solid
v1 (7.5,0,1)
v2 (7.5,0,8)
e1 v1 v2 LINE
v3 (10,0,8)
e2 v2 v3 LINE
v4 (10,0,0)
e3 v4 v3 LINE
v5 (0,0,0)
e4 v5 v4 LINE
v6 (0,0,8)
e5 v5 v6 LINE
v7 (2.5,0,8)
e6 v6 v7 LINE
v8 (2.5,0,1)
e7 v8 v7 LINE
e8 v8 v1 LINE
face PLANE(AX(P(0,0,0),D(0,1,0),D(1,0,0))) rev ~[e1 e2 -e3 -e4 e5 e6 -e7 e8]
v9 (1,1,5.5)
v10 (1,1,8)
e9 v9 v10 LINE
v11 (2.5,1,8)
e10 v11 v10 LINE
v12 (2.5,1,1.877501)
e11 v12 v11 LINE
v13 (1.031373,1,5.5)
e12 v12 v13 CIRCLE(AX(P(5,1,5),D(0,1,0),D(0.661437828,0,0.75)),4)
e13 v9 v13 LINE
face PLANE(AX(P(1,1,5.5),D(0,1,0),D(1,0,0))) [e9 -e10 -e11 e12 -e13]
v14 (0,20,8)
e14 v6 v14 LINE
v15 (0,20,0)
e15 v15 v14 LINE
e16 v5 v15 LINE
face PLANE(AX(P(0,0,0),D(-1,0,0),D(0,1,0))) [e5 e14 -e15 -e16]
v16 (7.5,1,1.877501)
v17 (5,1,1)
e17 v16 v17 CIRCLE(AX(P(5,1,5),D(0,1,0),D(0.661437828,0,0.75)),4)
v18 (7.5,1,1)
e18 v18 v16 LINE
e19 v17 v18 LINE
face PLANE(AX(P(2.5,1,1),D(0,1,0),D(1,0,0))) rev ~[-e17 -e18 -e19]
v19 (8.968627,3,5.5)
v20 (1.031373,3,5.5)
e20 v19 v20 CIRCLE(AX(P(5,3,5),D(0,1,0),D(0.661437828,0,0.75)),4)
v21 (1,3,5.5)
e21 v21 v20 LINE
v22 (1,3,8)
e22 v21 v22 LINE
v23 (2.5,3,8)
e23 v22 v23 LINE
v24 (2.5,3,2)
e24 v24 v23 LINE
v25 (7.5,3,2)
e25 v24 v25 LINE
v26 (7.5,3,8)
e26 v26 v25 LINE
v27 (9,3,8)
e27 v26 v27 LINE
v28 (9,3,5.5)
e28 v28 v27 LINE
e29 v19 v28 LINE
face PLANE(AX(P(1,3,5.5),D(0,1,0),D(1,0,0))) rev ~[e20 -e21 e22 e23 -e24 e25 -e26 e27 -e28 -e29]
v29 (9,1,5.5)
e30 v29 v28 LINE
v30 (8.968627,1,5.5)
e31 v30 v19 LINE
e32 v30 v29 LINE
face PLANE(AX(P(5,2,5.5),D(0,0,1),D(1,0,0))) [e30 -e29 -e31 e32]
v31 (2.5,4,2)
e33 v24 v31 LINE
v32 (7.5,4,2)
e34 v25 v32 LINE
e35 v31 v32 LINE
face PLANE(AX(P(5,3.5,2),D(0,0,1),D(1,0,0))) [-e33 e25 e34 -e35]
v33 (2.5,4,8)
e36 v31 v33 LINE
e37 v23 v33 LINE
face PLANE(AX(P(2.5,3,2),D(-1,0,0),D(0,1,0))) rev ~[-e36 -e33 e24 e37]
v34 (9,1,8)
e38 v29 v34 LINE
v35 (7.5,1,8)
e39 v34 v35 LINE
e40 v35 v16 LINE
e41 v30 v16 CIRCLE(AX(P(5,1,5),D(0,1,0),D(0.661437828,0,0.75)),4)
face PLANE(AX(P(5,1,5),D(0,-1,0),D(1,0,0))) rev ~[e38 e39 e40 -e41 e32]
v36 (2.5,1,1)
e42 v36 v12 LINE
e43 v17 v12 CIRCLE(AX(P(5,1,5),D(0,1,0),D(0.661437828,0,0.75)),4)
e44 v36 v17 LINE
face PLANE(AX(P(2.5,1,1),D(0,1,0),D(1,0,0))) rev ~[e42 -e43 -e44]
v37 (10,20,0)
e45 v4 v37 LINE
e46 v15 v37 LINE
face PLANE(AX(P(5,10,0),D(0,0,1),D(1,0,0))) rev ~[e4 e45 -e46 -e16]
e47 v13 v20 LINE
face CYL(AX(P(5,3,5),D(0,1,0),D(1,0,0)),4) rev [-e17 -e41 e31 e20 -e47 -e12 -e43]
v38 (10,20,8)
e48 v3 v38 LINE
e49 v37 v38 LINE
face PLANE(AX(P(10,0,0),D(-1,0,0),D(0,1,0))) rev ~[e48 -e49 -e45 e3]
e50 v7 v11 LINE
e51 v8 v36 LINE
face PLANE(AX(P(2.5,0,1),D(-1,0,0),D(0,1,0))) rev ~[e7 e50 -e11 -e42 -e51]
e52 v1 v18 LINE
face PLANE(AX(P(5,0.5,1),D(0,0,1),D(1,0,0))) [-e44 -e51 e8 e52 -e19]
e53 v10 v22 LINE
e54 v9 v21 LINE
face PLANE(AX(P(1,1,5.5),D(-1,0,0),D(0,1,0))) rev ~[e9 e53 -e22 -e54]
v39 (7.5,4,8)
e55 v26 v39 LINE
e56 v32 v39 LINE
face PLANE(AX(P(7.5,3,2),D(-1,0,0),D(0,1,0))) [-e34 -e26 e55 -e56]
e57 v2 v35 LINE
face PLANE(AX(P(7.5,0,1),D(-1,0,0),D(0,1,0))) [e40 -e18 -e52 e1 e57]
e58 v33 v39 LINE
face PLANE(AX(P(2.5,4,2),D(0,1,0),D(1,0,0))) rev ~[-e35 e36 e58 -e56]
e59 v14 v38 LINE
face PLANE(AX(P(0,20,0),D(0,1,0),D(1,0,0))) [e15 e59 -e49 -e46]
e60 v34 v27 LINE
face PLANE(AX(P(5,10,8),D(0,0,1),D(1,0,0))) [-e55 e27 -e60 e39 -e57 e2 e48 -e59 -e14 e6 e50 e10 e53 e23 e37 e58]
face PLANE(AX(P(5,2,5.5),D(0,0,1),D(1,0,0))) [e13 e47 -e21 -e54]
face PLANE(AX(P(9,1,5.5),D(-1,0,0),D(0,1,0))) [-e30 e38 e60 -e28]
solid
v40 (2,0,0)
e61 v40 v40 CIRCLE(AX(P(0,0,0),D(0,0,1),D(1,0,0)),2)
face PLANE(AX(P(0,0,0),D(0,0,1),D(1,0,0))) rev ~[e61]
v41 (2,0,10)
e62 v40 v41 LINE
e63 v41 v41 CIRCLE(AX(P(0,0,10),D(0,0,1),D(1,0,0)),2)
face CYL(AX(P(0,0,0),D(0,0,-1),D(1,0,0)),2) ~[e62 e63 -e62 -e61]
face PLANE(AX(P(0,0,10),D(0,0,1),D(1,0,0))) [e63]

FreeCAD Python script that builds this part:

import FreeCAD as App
import Part
import Sketcher

doc = App.newDocument("Part")
body = doc.addObject("PartDesign::Body", "Body")

# Sketch on XY plane
sketch1 = body.newObject("Sketcher::SketchObject", "Sketch")
sketch1.AttachmentSupport = (doc.getObject("XY_Plane"), [""])
sketch1.MapMode = "FlatFace"
sketch1.AttachmentOffset = App.Placement(App.Vector(0, 0, 5.5), App.Rotation())
sketch1.addGeometry([
    Part.LineSegment(App.Vector(1, 3, 0), App.Vector(1, 1, 0)),
    Part.LineSegment(App.Vector(1, 1, 0), App.Vector(9, 1, 0)),
    Part.LineSegment(App.Vector(9, 1, 0), App.Vector(9, 3, 0)),
    Part.LineSegment(App.Vector(9, 3, 0), App.Vector(1, 3, 0)),
], False)
sketch1.addConstraint([
    Sketcher.Constraint("Coincident", 0, 2, 1, 1),
    Sketcher.Constraint("Coincident", 1, 2, 2, 1),
    Sketcher.Constraint("Coincident", 2, 2, 3, 1),
    Sketcher.Constraint("Coincident", 3, 2, 0, 1),
    Sketcher.Constraint("Vertical", 0),
    Sketcher.Constraint("Horizontal", 1),
    Sketcher.Constraint("Vertical", 2),
    Sketcher.Constraint("Horizontal", 3),
    Sketcher.Constraint("DistanceX", 1, 1, 1, 2, 8.0),
    Sketcher.Constraint("DistanceY", 0, 2, 0, 1, 2.0),
    Sketcher.Constraint("DistanceX", -1, 1, 0, 2, 1.0),
    Sketcher.Constraint("DistanceY", -1, 1, 0, 2, 1.0),
])
pad1 = body.newObject("PartDesign::Pad", "Pad")
pad1.Profile = sketch1
pad1.Length = 2.5
body2 = doc.addObject("PartDesign::Body", "Body001")

# Sketch on XY plane
sketch2 = body2.newObject("Sketcher::SketchObject", "Sketch001")
sketch2.AttachmentSupport = (doc.getObject("XY_Plane001"), [""])
sketch2.MapMode = "FlatFace"
sketch2.AttachmentOffset = App.Placement(App.Vector(0, 0, 2), App.Rotation())
sketch2.addGeometry([
    Part.LineSegment(App.Vector(2.5, 4, 0), App.Vector(2.5, 3, 0)),
    Part.LineSegment(App.Vector(2.5, 3, 0), App.Vector(7.5, 3, 0)),
    Part.LineSegment(App.Vector(7.5, 3, 0), App.Vector(7.5, 4, 0)),
    Part.LineSegment(App.Vector(7.5, 4, 0), App.Vector(2.5, 4, 0)),
], False)
sketch2.addConstraint([
    Sketcher.Constraint("Coincident", 0, 2, 1, 1),
    Sketcher.Constraint("Coincident", 1, 2, 2, 1),
    Sketcher.Constraint("Coincident", 2, 2, 3, 1),
    Sketcher.Constraint("Coincident", 3, 2, 0, 1),
    Sketcher.Constraint("Vertical", 0),
    Sketcher.Constraint("Horizontal", 1),
    Sketcher.Constraint("Vertical", 2),
    Sketcher.Constraint("Horizontal", 3),
    Sketcher.Constraint("DistanceX", 1, 1, 1, 2, 5.0),
    Sketcher.Constraint("DistanceY", 0, 2, 0, 1, 1.0),
    Sketcher.Constraint("DistanceY", -1, 1, 0, 2, 3.0),
    Sketcher.Constraint("DistanceX", -1, 1, 0, 2, 2.5),
])
pad2 = body2.newObject("PartDesign::Pad", "Pad001")
pad2.Profile = sketch2
pad2.Length = 6
body3 = doc.addObject("PartDesign::Body", "Body002")

# Sketch on XY plane
sketch3 = body3.newObject("Sketcher::SketchObject", "Sketch002")
sketch3.AttachmentSupport = (doc.getObject("XY_Plane002"), [""])
sketch3.MapMode = "FlatFace"
sketch3.AttachmentOffset = App.Placement(App.Vector(0, 0, 1), App.Rotation())
sketch3.addGeometry([
    Part.LineSegment(App.Vector(2.5, 1, 0), App.Vector(2.5, 0, 0)),
    Part.LineSegment(App.Vector(2.5, 0, 0), App.Vector(7.5, 0, 0)),
    Part.LineSegment(App.Vector(7.5, 0, 0), App.Vector(7.5, 1, 0)),
    Part.LineSegment(App.Vector(7.5, 1, 0), App.Vector(2.5, 1, 0)),
], False)
sketch3.addConstraint([
    Sketcher.Constraint("Coincident", 0, 2, 1, 1),
    Sketcher.Constraint("Coincident", 1, 2, 2, 1),
    Sketcher.Constraint("Coincident", 2, 2, 3, 1),
    Sketcher.Constraint("Coincident", 3, 2, 0, 1),
    Sketcher.Constraint("Vertical", 0),
    Sketcher.Constraint("Horizontal", 1),
    Sketcher.Constraint("Vertical", 2),
    Sketcher.Constraint("Horizontal", 3),
    Sketcher.Constraint("PointOnObject", 0, 2, -1),
    Sketcher.Constraint("DistanceX", 1, 1, 1, 2, 5.0),
    Sketcher.Constraint("DistanceY", 0, 2, 0, 1, 1.0),
    Sketcher.Constraint("DistanceX", -1, 1, 0, 2, 2.5),
])
pad3 = body3.newObject("PartDesign::Pad", "Pad002")
pad3.Profile = sketch3
pad3.Length = 7
body4 = doc.addObject("PartDesign::Body", "Body003")

# Sketch on XY plane
sketch4 = body4.newObject("Sketcher::SketchObject", "Sketch003")
sketch4.AttachmentSupport = (doc.getObject("XY_Plane003"), [""])
sketch4.MapMode = "FlatFace"
sketch4.addGeometry(Part.Circle(App.Vector(0, 0, 0), App.Vector(0, 0, 1), 4), False)
sketch4.addConstraint([
    Sketcher.Constraint("Coincident", 0, 3, -1, 1),
    Sketcher.Constraint("Diameter", 0, 8.0),
])
pad4 = body4.newObject("PartDesign::Pad", "Pad003")
pad4.Profile = sketch4
pad4.Length = 2
body5 = doc.addObject("PartDesign::Body", "Body004")
doc.recompute()

body4.Placement = App.Placement(App.Vector(0, 0, 0), App.Rotation(App.Vector(1, 0, 0), 90))
boolean = body5.newObject("PartDesign::Boolean", "Boolean")
boolean.Type = "Fuse"
boolean.addObjects([body4])
body6 = doc.addObject("PartDesign::Body", "Body005")
doc.recompute()

body5.Placement = App.Placement(App.Vector(5, 3, 5), App.Rotation(App.Vector(0, 0, 1), 0))
boolean2 = body6.newObject("PartDesign::Boolean", "Boolean001")
boolean2.Type = "Fuse"
boolean2.addObjects([body5])
body7 = doc.addObject("PartDesign::Body", "Body006")

# Sketch on XY plane
sketch5 = body7.newObject("Sketcher::SketchObject", "Sketch004")
sketch5.AttachmentSupport = (doc.getObject("XY_Plane006"), [""])
sketch5.MapMode = "FlatFace"
sketch5.addGeometry([
    Part.LineSegment(App.Vector(0, 20, 0), App.Vector(0, 0, 0)),
    Part.LineSegment(App.Vector(0, 0, 0), App.Vector(10, 0, 0)),
    Part.LineSegment(App.Vector(10, 0, 0), App.Vector(10, 20, 0)),
    Part.LineSegment(App.Vector(10, 20, 0), App.Vector(0, 20, 0)),
], False)
sketch5.addConstraint([
    Sketcher.Constraint("Coincident", 0, 2, 1, 1),
    Sketcher.Constraint("Coincident", 1, 2, 2, 1),
    Sketcher.Constraint("Coincident", 2, 2, 3, 1),
    Sketcher.Constraint("Coincident", 3, 2, 0, 1),
    Sketcher.Constraint("Vertical", 0),
    Sketcher.Constraint("Horizontal", 1),
    Sketcher.Constraint("Vertical", 2),
    Sketcher.Constraint("Horizontal", 3),
    Sketcher.Constraint("Coincident", 0, 2, -1, 1),
    Sketcher.Constraint("DistanceX", 1, 1, 1, 2, 10.0),
    Sketcher.Constraint("DistanceY", 0, 2, 0, 1, 20.0),
])
pad5 = body7.newObject("PartDesign::Pad", "Pad004")
pad5.Profile = sketch5
pad5.Length = 8
doc.recompute()

boolean3 = body7.newObject("PartDesign::Boolean", "Boolean002")
boolean3.Type = "Cut"
boolean3.addObjects([body6])
doc.recompute()

boolean4 = body7.newObject("PartDesign::Boolean", "Boolean003")
boolean4.Type = "Cut"
boolean4.addObjects([body3])
doc.recompute()

boolean5 = body7.newObject("PartDesign::Boolean", "Boolean004")
boolean5.Type = "Cut"
boolean5.addObjects([body2])
doc.recompute()

boolean6 = body7.newObject("PartDesign::Boolean", "Boolean005")
boolean6.Type = "Cut"
boolean6.addObjects([body])
body8 = doc.addObject("PartDesign::Body", "Body007")

# Sketch on XY plane
sketch6 = body8.newObject("Sketcher::SketchObject", "Sketch005")
sketch6.AttachmentSupport = (doc.getObject("XY_Plane007"), [""])
sketch6.MapMode = "FlatFace"
sketch6.addGeometry(Part.Circle(App.Vector(0, 0, 0), App.Vector(0, 0, 1), 2), False)
sketch6.addConstraint([
    Sketcher.Constraint("Coincident", 0, 3, -1, 1),
    Sketcher.Constraint("Diameter", 0, 4.0),
])
pad6 = body8.newObject("PartDesign::Pad", "Pad005")
pad6.Profile = sketch6
pad6.Length = 10

doc.recompute()
